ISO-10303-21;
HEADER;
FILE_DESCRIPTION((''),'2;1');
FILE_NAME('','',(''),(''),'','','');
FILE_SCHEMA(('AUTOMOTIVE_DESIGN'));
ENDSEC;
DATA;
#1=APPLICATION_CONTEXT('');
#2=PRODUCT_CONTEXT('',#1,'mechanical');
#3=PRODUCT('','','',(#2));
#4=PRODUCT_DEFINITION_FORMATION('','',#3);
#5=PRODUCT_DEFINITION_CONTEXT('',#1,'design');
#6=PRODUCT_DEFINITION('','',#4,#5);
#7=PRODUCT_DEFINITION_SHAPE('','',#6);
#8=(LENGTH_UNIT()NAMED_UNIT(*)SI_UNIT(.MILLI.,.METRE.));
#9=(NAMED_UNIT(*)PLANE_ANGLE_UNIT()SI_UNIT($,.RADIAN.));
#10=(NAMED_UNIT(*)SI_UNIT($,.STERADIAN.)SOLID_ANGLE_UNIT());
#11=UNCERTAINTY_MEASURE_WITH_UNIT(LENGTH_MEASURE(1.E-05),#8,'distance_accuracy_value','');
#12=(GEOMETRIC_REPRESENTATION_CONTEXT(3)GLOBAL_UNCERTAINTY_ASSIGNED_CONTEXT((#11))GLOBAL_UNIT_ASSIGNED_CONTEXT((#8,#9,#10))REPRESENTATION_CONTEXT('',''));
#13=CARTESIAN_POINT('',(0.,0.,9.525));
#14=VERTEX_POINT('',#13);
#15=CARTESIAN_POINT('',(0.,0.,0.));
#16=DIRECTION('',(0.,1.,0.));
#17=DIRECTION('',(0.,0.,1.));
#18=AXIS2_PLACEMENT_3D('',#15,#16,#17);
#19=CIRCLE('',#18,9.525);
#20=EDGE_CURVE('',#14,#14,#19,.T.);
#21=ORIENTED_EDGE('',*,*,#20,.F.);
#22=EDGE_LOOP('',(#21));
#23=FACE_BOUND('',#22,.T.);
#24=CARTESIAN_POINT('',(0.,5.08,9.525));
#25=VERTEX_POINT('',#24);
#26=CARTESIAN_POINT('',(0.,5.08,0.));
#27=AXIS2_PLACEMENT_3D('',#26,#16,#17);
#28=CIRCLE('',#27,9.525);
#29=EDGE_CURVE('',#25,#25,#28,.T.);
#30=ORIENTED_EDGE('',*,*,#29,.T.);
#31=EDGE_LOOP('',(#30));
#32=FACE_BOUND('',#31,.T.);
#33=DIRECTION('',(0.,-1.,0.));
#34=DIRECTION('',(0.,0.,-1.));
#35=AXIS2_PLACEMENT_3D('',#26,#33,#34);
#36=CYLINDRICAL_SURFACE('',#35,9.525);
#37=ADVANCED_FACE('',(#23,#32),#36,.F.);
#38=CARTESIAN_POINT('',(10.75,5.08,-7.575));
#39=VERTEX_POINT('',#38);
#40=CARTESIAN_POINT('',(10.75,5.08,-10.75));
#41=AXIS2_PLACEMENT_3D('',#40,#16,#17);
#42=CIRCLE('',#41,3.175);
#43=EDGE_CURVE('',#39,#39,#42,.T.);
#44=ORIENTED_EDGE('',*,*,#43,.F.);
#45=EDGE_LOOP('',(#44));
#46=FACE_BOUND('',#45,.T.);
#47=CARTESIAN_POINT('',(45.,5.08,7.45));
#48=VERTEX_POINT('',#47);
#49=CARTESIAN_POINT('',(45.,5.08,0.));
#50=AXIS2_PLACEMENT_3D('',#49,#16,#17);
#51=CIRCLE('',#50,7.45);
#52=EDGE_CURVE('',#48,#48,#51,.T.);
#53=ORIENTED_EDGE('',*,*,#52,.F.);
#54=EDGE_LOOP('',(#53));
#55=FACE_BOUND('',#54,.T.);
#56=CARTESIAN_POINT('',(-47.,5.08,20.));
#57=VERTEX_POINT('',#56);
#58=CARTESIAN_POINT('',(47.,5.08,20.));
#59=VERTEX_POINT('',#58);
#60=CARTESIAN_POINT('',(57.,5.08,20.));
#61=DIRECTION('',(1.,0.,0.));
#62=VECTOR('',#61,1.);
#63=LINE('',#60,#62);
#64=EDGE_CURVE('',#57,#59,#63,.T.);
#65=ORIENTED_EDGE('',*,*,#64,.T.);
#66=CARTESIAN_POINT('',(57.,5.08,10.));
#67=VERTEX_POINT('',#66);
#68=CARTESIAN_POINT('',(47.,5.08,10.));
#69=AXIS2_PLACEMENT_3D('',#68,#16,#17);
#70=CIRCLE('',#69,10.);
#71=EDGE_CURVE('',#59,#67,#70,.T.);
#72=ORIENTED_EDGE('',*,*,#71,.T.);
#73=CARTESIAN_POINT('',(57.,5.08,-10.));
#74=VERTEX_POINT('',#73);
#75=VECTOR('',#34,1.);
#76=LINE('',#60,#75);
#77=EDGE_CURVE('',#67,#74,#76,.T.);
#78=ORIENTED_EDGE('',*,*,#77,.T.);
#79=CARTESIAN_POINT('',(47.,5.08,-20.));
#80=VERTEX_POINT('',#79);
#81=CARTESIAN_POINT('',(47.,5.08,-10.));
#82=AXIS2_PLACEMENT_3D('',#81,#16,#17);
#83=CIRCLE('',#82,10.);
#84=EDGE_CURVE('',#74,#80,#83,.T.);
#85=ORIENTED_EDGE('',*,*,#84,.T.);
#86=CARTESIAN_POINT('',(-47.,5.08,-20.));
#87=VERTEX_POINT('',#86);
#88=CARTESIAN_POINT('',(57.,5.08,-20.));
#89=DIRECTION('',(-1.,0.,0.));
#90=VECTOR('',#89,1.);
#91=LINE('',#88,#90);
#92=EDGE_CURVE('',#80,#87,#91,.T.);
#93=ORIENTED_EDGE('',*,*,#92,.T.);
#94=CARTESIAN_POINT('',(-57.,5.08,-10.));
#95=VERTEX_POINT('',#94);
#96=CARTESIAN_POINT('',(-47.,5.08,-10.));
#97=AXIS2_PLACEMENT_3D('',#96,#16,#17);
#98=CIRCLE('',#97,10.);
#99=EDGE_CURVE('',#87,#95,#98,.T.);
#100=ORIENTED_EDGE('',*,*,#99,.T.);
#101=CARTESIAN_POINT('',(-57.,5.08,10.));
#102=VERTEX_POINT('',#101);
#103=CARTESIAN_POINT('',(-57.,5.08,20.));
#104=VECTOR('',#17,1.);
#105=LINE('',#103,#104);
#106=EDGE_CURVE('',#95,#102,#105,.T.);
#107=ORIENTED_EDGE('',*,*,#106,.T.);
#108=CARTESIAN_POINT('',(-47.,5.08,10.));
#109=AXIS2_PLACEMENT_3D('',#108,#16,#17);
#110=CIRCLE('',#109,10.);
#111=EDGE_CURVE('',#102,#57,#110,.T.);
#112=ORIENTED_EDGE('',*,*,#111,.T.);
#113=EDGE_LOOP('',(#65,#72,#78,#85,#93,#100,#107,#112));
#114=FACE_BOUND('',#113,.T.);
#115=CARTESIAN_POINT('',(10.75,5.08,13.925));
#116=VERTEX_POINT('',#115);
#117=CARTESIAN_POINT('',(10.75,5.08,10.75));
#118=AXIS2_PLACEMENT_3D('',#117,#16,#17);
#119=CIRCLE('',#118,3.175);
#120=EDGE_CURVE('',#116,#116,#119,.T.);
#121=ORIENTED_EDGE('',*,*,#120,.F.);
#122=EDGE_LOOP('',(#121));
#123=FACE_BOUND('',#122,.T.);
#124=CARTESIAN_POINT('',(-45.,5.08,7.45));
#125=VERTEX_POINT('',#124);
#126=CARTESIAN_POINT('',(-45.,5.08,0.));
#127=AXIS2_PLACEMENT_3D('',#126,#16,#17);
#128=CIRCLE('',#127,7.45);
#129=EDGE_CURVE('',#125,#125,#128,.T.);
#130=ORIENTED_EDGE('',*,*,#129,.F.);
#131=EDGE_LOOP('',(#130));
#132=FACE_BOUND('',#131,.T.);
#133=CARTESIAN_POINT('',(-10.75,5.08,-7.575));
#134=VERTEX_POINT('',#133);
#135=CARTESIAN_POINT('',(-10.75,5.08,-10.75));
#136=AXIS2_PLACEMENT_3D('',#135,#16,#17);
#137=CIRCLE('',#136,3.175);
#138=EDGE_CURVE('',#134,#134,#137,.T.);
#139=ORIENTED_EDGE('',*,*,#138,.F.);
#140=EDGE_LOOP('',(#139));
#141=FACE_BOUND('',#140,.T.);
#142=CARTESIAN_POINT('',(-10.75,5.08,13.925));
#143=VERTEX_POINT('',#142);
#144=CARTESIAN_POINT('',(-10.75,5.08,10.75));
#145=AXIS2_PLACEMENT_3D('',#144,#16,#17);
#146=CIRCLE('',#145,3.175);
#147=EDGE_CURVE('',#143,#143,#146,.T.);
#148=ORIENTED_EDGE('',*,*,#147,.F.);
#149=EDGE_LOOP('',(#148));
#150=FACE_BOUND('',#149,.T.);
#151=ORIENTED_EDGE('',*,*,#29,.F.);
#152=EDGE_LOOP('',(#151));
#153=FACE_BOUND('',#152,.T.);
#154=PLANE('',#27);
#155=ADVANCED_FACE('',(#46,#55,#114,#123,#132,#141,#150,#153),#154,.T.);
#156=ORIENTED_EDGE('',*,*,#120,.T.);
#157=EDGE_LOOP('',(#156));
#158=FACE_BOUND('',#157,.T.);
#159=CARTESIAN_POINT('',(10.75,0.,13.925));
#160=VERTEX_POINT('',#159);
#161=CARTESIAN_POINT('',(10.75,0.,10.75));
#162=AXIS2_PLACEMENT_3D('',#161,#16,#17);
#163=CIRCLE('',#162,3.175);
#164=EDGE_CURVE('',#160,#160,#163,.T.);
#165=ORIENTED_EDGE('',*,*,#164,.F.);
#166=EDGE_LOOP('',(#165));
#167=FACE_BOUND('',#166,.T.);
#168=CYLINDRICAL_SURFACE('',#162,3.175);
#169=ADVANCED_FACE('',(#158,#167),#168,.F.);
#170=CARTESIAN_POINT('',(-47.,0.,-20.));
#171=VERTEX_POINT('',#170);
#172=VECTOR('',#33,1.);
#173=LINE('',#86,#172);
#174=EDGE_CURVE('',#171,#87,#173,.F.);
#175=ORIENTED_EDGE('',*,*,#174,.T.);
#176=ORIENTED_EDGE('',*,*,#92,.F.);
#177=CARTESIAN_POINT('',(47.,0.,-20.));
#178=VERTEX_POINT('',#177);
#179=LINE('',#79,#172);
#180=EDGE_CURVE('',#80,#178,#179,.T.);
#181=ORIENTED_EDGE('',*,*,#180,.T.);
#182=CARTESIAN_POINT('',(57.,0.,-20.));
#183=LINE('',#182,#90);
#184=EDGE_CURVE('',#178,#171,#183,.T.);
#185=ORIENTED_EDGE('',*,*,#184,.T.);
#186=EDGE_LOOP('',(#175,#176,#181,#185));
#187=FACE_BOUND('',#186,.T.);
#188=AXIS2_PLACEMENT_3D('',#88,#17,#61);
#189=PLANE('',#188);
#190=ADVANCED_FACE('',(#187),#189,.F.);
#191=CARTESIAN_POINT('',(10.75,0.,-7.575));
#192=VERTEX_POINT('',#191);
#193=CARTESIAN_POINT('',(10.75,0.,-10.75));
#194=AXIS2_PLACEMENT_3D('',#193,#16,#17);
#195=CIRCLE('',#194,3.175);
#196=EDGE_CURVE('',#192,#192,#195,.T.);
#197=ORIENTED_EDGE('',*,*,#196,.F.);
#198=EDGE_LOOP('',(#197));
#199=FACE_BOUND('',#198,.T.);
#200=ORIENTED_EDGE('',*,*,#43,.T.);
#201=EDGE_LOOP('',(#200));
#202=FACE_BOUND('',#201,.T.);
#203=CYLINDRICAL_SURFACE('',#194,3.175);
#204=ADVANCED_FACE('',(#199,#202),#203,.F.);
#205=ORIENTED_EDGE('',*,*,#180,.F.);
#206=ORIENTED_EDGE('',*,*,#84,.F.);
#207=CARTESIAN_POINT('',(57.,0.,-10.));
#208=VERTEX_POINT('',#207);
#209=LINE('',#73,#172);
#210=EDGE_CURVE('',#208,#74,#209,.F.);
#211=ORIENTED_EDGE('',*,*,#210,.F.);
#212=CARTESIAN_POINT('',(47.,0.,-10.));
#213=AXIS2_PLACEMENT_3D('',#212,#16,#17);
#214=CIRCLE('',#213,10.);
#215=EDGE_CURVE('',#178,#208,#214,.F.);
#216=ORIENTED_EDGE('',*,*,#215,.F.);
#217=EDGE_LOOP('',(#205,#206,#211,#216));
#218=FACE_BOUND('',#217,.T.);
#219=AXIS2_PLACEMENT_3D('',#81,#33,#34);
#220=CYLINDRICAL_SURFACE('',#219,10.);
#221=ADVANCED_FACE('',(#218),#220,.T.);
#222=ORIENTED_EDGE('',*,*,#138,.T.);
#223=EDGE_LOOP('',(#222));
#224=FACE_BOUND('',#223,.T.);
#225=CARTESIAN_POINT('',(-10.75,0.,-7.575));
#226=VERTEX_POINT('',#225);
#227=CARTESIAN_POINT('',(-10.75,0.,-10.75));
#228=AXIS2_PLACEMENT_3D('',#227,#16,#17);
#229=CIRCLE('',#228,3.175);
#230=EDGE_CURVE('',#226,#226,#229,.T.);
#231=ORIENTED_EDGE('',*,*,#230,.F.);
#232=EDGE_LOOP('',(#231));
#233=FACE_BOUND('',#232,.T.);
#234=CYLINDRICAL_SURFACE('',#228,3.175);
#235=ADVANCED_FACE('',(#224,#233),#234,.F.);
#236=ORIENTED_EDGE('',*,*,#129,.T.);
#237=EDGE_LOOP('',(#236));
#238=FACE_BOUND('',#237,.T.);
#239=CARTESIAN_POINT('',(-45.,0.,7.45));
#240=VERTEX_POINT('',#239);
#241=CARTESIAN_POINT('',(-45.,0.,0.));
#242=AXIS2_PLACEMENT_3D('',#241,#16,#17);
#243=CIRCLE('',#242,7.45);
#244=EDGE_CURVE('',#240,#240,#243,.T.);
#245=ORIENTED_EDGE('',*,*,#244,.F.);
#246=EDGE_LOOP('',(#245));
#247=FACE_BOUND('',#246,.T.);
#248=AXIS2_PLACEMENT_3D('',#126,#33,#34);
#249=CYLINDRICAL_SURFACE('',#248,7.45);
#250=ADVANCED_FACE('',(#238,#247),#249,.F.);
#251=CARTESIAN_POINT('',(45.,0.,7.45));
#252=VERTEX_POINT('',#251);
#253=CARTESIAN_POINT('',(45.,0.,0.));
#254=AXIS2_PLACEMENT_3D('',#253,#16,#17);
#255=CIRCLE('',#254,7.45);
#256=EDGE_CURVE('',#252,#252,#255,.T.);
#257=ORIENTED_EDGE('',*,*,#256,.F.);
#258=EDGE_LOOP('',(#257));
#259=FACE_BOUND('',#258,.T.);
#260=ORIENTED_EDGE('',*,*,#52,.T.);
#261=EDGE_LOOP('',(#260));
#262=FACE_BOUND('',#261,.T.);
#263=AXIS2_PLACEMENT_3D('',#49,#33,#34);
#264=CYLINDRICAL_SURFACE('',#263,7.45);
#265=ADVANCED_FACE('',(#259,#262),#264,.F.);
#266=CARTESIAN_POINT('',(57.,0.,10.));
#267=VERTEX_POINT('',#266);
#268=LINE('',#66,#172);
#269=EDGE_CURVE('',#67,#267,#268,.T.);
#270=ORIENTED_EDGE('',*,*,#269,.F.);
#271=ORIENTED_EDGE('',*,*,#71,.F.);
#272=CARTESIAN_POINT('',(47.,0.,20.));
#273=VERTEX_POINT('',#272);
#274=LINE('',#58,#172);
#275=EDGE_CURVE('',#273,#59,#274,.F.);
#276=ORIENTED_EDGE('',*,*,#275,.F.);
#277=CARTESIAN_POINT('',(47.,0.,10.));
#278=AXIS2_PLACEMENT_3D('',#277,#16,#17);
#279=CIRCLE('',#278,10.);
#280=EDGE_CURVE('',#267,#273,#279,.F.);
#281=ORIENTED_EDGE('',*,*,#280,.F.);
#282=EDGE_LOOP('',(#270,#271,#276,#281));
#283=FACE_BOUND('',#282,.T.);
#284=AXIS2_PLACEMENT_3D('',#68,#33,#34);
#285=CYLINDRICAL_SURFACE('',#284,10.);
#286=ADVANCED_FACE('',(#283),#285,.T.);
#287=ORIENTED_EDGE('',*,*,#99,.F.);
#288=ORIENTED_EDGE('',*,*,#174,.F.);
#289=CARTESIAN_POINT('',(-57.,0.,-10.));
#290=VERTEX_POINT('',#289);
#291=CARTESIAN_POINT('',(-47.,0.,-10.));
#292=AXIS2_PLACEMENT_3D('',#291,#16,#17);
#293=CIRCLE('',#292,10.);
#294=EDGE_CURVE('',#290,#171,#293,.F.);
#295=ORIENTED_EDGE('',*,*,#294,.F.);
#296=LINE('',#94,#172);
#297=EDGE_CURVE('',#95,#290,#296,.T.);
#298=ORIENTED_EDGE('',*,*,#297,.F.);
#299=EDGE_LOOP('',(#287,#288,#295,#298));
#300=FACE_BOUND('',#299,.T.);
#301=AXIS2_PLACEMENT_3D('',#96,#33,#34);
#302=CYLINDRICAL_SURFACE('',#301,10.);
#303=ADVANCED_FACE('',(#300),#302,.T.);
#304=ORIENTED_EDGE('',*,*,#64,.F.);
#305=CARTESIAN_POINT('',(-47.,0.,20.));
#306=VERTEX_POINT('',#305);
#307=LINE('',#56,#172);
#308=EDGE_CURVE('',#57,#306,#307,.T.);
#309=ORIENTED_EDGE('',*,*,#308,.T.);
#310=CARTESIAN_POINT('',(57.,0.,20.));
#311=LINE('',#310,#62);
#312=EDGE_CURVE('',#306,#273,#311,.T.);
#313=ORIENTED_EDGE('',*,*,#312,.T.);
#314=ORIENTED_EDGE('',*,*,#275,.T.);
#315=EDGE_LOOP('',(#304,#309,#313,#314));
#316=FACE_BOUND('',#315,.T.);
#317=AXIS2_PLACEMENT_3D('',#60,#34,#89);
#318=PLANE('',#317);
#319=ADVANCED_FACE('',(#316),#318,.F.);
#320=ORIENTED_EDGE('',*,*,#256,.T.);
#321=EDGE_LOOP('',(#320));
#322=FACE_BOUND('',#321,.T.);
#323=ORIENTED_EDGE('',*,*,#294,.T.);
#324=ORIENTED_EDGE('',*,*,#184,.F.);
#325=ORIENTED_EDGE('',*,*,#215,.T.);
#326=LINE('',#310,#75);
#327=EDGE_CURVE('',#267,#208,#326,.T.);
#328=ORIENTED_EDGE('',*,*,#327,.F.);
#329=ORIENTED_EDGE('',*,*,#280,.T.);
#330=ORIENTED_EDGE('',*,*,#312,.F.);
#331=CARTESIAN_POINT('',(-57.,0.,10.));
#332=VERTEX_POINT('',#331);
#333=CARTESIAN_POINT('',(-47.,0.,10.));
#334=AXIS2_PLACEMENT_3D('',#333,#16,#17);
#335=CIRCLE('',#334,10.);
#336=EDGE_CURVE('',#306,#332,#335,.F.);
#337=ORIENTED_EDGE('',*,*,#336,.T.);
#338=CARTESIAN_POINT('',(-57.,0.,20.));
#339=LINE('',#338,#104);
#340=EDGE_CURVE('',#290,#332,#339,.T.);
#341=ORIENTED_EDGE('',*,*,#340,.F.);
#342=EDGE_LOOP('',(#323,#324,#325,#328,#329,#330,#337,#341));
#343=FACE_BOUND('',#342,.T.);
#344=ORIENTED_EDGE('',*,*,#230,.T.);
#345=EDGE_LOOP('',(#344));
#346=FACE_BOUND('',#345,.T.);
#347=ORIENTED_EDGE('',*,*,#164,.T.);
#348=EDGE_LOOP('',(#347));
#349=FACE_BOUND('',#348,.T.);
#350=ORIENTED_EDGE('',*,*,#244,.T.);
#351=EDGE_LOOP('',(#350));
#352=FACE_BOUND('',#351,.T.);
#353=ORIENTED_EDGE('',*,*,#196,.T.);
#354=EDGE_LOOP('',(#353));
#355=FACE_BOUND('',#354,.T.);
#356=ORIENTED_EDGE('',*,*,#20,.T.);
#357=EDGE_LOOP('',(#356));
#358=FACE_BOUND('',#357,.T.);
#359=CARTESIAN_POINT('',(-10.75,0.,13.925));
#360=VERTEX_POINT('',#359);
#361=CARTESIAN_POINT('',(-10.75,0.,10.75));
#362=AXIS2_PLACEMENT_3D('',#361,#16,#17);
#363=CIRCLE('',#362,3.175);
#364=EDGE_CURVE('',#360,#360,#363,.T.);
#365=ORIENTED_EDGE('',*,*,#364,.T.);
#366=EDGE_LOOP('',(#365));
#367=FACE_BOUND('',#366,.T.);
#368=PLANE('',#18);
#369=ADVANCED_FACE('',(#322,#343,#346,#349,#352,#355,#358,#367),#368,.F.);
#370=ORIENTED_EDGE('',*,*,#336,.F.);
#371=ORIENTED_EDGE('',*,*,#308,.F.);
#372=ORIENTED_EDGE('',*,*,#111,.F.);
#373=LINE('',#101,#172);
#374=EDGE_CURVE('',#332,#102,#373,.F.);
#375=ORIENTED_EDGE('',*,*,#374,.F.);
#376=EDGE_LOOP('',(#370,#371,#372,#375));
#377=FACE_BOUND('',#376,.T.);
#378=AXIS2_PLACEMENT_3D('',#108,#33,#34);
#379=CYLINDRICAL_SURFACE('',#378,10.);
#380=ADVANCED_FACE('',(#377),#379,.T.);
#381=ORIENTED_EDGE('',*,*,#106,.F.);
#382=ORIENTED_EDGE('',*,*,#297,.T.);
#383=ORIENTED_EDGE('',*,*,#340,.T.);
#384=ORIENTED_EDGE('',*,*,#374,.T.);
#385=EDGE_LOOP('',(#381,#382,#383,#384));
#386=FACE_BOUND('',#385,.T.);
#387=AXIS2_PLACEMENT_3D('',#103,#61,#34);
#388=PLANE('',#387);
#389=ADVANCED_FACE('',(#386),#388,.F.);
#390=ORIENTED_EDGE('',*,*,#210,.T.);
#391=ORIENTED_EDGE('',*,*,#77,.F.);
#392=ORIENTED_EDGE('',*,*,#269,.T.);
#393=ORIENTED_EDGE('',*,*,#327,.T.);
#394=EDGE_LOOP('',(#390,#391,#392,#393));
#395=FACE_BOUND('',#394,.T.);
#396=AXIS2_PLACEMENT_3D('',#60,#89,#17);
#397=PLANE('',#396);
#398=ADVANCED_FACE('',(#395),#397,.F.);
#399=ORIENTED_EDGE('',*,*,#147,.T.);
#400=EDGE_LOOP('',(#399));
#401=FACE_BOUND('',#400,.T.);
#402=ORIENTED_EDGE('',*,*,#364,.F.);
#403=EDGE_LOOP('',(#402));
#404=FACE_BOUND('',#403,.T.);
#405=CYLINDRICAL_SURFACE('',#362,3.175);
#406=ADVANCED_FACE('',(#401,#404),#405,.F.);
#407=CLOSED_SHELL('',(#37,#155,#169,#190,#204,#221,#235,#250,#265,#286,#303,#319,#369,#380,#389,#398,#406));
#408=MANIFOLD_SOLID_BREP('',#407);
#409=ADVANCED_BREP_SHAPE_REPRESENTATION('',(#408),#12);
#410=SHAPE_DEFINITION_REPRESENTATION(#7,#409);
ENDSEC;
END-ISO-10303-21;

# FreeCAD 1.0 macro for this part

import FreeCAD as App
import Part
import Sketcher
from FreeCAD import Vector


def edges_at(feature, points):
    """Names of the edges that pass closest to the given points."""
    edges = feature.Shape.Edges
    near = lambda p: min(range(len(edges)), key=lambda i: edges[i].distToShape(Part.Vertex(*p))[0])
    return sorted({f"Edge{near(p) + 1}" for p in points})

doc = App.newDocument("Part")
params = doc.addObject("Spreadsheet::Sheet", "Params")
for row, (alias, value) in enumerate([
    ("sketch1_diameter", "14.9 mm"),
    ("sketch1_diameter2", "19.05 mm"),
    ("sketch1_width", "114 mm"),
    ("sketch1_height", "40 mm"),
    ("pad1_length", "5.08 mm"),
    ("fillet_radius", "10 mm"),
    ("sketch2_diameter", "6.35 mm"),
], start=1):
    params.set(f"A{row}", alias)
    params.set(f"B{row}", "=" + value)
    params.setAlias(f"B{row}", alias)

body = doc.addObject("PartDesign::Body", "Body")

# Sketch on XZ plane
sketch1 = body.newObject("Sketcher::SketchObject", "Sketch")
sketch1.AttachmentSupport = (doc.getObject("XZ_Plane"), [""])
sketch1.MapMode = "FlatFace"
sketch1.addGeometry([
    Part.LineSegment(Vector(-57, -20, 0), Vector(-57, 20, 0)),  # 0
    Part.LineSegment(Vector(-57, 20, 0), Vector(57, 20, 0)),  # 1
    Part.LineSegment(Vector(57, 20, 0), Vector(57, -20, 0)),  # 2
    Part.LineSegment(Vector(57, -20, 0), Vector(-57, -20, 0)),  # 3
    Part.Circle(Vector(-45, 0, 0), Vector(0, 0, 1), 7.45),  # 4
    Part.Circle(Vector(0, 0, 0), Vector(0, 0, 1), 9.525),  # 5
    Part.Circle(Vector(45, 0, 0), Vector(0, 0, 1), 7.45),  # 6
], False)
sketch1.addConstraint([
    Sketcher.Constraint("Coincident", 0, 2, 1, 1),
    Sketcher.Constraint("Coincident", 1, 2, 2, 1),
    Sketcher.Constraint("Coincident", 2, 2, 3, 1),
    Sketcher.Constraint("Coincident", 3, 2, 0, 1),
    Sketcher.Constraint("Vertical", 0),
    Sketcher.Constraint("Horizontal", 1),
    Sketcher.Constraint("Vertical", 2),
    Sketcher.Constraint("Horizontal", 3),
    Sketcher.Constraint("Coincident", 5, 3, -1, 1),
    Sketcher.Constraint("Equal", 4, 6),
    Sketcher.Constraint("Symmetric", 4, 3, 6, 3, -1, 1),
    Sketcher.Constraint("Symmetric", 0, 2, 2, 2, -1, 1),
    Sketcher.Constraint("PointOnObject", 4, 3, -1),
    Sketcher.Constraint("Diameter", 4, 14.9),
    Sketcher.Constraint("Diameter", 5, 19.05),
    Sketcher.Constraint("DistanceX", 1, 1, 1, 2, 114.0),
    Sketcher.Constraint("DistanceY", 0, 1, 0, 2, 40.0),
    Sketcher.Constraint("DistanceX", 4, 3, -1, 1, 45.0),
])
sketch1.setExpression("Constraints[13]", "Params.sketch1_diameter")
sketch1.setExpression("Constraints[14]", "Params.sketch1_diameter2")
sketch1.setExpression("Constraints[15]", "Params.sketch1_width")
sketch1.setExpression("Constraints[16]", "Params.sketch1_height")
pad1 = body.newObject("PartDesign::Pad", "Pad")
pad1.Profile = sketch1
pad1.setExpression("Length", "Params.pad1_length")
pad1.Reversed = True
doc.recompute()

fillet = body.newObject("PartDesign::Fillet", "Fillet")
fillet.Base = (pad1, edges_at(pad1, [
    (-57, 2.54, -20),
    (57, 2.54, -20),
    (57, 2.54, 20),
    (-57, 2.54, 20),
]))
fillet.setExpression("Radius", "Params.fillet_radius")

# Sketch on XZ plane
sketch2 = body.newObject("Sketcher::SketchObject", "Sketch001")
sketch2.AttachmentSupport = (doc.getObject("XZ_Plane"), [""])
sketch2.MapMode = "FlatFace"
sketch2.AttachmentOffset = App.Placement(Vector(0, 0, -5.08), App.Rotation())
sketch2.addGeometry([
    Part.Circle(Vector(-10.75, 10.75, 0), Vector(0, 0, 1), 3.175),
    Part.Circle(Vector(-10.75, -10.75, 0), Vector(0, 0, 1), 3.175),
    Part.Circle(Vector(10.75, -10.75, 0), Vector(0, 0, 1), 3.175),
    Part.Circle(Vector(10.75, 10.75, 0), Vector(0, 0, 1), 3.175),
], False)
sketch2.addConstraint([
    Sketcher.Constraint("Equal", 0, 1),
    Sketcher.Constraint("Equal", 1, 2),
    Sketcher.Constraint("Equal", 2, 3),
    Sketcher.Constraint("Symmetric", 0, 3, 2, 3, -1, 1),
    Sketcher.Constraint("Symmetric", 1, 3, 3, 3, -1, 1),
    Sketcher.Constraint("Symmetric", 1, 3, 2, 3, -2),
    Sketcher.Constraint("Diameter", 0, 6.35),
    Sketcher.Constraint("DistanceY", 1, 3, 0, 3, 21.5),
    Sketcher.Constraint("DistanceX", 1, 3, 2, 3, 21.5),
])
sketch2.setExpression("Constraints[6]", "Params.sketch2_diameter")
pocket1 = body.newObject("PartDesign::Pocket", "Pocket")
pocket1.Profile = sketch2
pocket1.Type = "ThroughAll"
pocket1.Reversed = True

doc.recompute()
